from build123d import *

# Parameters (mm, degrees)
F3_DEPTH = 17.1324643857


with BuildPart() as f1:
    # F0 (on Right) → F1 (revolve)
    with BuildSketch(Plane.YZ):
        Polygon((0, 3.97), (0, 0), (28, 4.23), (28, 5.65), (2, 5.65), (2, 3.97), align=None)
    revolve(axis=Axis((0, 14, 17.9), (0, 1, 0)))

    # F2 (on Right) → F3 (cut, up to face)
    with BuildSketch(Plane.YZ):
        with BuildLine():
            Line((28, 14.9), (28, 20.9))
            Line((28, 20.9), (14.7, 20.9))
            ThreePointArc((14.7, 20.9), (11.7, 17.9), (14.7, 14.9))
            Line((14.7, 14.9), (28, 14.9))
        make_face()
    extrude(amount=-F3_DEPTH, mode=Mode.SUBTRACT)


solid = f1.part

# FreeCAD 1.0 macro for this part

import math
import FreeCAD as App
import Part
import Sketcher
from FreeCAD import Vector
Q = App.Units.Quantity

doc = App.newDocument("Part")
body = doc.addObject("PartDesign::Body", "Body")

# Sketch on YZ plane
sketch1 = doc.addObject("Sketcher::SketchObject", "Sketch")
body.addObject(sketch1)
sketch1.AttachmentSupport = (doc.YZ_Plane, [""])
sketch1.MapMode = "FlatFace"
sketch1.addGeometry([
    Part.LineSegment(Vector(0, 3.97, 0), Vector(0, 0, 0)),  # 0
    Part.LineSegment(Vector(0, 0, 0), Vector(28, 4.23, 0)),  # 1
    Part.LineSegment(Vector(28, 4.23, 0), Vector(28, 5.65, 0)),  # 2
    Part.LineSegment(Vector(28, 5.65, 0), Vector(2, 5.65, 0)),  # 3
    Part.LineSegment(Vector(2, 5.65, 0), Vector(2, 3.97, 0)),  # 4
    Part.LineSegment(Vector(2, 3.97, 0), Vector(0, 3.97, 0)),  # 5
], False)
sketch1.addGeometry(Part.LineSegment(Vector(0, 17.9, 0), Vector(28, 17.9, 0)), True)  # axis
sketch1.addConstraint([
    Sketcher.Constraint("Coincident", 0, 2, 1, 1),
    Sketcher.Constraint("Coincident", 1, 2, 2, 1),
    Sketcher.Constraint("Coincident", 2, 2, 3, 1),
    Sketcher.Constraint("Coincident", 3, 2, 4, 1),
    Sketcher.Constraint("Coincident", 4, 2, 5, 1),
    Sketcher.Constraint("Coincident", 5, 2, 0, 1),
    Sketcher.Constraint("Vertical", 0),
    Sketcher.Constraint("Vertical", 2),
    Sketcher.Constraint("Horizontal", 3),
    Sketcher.Constraint("Vertical", 4),
    Sketcher.Constraint("Horizontal", 5),
    Sketcher.Constraint("Horizontal", 6),
    Sketcher.Constraint("Coincident", 0, 2, -1, 1),
    Sketcher.Constraint("PointOnObject", 6, 1, -2),
    Sketcher.Constraint("Vertical", 2, 2, 6, 2),
    Sketcher.Constraint("DistanceX", 3, 2, 3, 1, Q("26 mm")),
    Sketcher.Constraint("DistanceX", 5, 2, 5, 1, Q("2 mm")),
    Sketcher.Constraint("DistanceY", 0, 2, 0, 1, Q("3.97 mm")),
    Sketcher.Constraint("DistanceY", 2, 1, 2, 2, Q("1.42 mm")),
    Sketcher.Constraint("DistanceY", 4, 2, 4, 1, Q("1.68 mm")),
    Sketcher.Constraint("DistanceY", -1, 1, 6, 1, Q("17.9 mm")),
])
revolution = doc.addObject("PartDesign::Revolution", "Revolution")
body.addObject(revolution)
revolution.Profile = sketch1
revolution.ReferenceAxis = (sketch1, ["Axis0"])
revolution.Angle = 360

# Sketch on YZ plane
sketch2 = doc.addObject("Sketcher::SketchObject", "Sketch001")
body.addObject(sketch2)
sketch2.AttachmentSupport = (doc.YZ_Plane, [""])
sketch2.MapMode = "FlatFace"
sketch2.addGeometry([
    Part.LineSegment(Vector(28, 14.9, 0), Vector(28, 20.9, 0)),
    Part.LineSegment(Vector(28, 20.9, 0), Vector(14.7, 20.9, 0)),
    Part.ArcOfCircle(Part.Circle(Vector(14.7, 17.9, 0), Vector(0, 0, 1), 3), math.radians(90), math.radians(270)),
    Part.LineSegment(Vector(14.7, 14.9, 0), Vector(28, 14.9, 0)),
], False)
sketch2.addConstraint([
    Sketcher.Constraint("Coincident", 0, 2, 1, 1),
    Sketcher.Constraint("Tangent", 1, 2, 2, 1),
    Sketcher.Constraint("Tangent", 2, 2, 3, 1),
    Sketcher.Constraint("Coincident", 3, 2, 0, 1),
    Sketcher.Constraint("Vertical", 0),
    Sketcher.Constraint("Horizontal", 1),
    Sketcher.Constraint("Horizontal", 3),
    Sketcher.Constraint("Radius", 2, Q("3 mm")),
    Sketcher.Constraint("DistanceX", 1, 2, 1, 1, Q("13.3 mm")),
    Sketcher.Constraint("DistanceX", -1, 1, 0, 2, Q("28 mm")),
    Sketcher.Constraint("DistanceY", -1, 1, 2, 3, Q("17.9 mm")),
])
pocket1 = doc.addObject("PartDesign::Pocket", "Pocket")
body.addObject(pocket1)
pocket1.Profile = sketch2
pocket1.Length = 17.132464

doc.recompute()
